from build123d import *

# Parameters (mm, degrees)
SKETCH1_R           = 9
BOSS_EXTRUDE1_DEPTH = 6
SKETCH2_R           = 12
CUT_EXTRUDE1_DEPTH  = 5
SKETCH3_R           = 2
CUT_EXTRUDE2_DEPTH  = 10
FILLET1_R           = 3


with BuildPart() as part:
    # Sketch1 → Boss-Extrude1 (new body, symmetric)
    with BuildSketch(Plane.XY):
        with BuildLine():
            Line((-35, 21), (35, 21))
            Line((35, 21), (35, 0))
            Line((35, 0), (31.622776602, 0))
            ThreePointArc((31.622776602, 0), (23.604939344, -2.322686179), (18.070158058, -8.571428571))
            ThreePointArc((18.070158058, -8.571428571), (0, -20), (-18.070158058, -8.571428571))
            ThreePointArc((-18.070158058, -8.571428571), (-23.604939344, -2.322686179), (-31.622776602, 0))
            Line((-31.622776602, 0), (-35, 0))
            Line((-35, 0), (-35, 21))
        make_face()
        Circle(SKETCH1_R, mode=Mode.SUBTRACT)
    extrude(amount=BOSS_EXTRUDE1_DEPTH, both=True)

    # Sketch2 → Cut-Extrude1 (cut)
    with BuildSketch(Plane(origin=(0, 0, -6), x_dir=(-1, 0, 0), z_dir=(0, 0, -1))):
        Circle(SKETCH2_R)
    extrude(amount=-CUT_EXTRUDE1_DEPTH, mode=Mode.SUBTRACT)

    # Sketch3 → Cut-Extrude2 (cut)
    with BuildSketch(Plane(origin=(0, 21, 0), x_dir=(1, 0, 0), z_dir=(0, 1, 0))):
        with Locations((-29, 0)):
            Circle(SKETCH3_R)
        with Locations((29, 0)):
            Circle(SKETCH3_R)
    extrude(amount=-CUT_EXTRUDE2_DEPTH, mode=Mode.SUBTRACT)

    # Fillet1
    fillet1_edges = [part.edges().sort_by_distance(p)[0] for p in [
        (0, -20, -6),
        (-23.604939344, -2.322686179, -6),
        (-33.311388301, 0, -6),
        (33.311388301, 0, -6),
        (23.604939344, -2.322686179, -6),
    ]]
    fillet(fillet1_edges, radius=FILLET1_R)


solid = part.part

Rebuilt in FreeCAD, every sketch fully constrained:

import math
import FreeCAD as App
import Part
import Sketcher


def edges_at(feature, points):
    """Names of the edges that pass closest to the given points."""
    edges = feature.Shape.Edges
    near = lambda p: min(range(len(edges)), key=lambda i: edges[i].distToShape(Part.Vertex(*p))[0])
    return sorted({f"Edge{near(p) + 1}" for p in points})

doc = App.newDocument("Part")
params = doc.addObject("Spreadsheet::Sheet", "Params")
for row, (alias, value) in enumerate([
    ("sketch1_diameter", "18 mm"),
    ("sketch1_radius", "15 mm"),
    ("sketch1_radius2", "20 mm"),
    ("sketch1_width", "70 mm"),
    ("sketch1_height", "21 mm"),
    ("pad1_length", "12 mm"),
    ("sketch2_diameter", "24 mm"),
    ("pocket1_length", "5 mm"),
    ("sketch3_diameter", "4 mm"),
    ("pocket2_length", "10 mm"),
    ("fillet_radius", "3 mm"),
], start=1):
    params.set(f"A{row}", alias)
    params.set(f"B{row}", "=" + value)
    params.setAlias(f"B{row}", alias)

body = doc.addObject("PartDesign::Body", "Body")

# Sketch on XY plane
sketch1 = body.newObject("Sketcher::SketchObject", "Sketch")
sketch1.AttachmentSupport = (doc.getObject("XY_Plane"), [""])
sketch1.MapMode = "FlatFace"
sketch1.addGeometry(Part.LineSegment(App.Vector(35, 21, 0), App.Vector(-35, 21, 0)), False)
sketch1.addGeometry(Part.LineSegment(App.Vector(-35, 21, 0), App.Vector(-35, 0, 0)), False)
sketch1.addGeometry(Part.LineSegment(App.Vector(-35, 0, 0), App.Vector(-31.6, 0, 0)), False)
sketch1.addGeometry(Part.ArcOfCircle(Part.Circle(App.Vector(-31.6, -15, 0), App.Vector(0, 0, 1), 15), math.radians(25), math.radians(90)), False)
sketch1.addGeometry(Part.ArcOfCircle(Part.Circle(App.Vector(0, 0, 0), App.Vector(0, 0, 1), 20), math.radians(-155), math.radians(-25)), False)
sketch1.addGeometry(Part.ArcOfCircle(Part.Circle(App.Vector(31.6, -15, 0), App.Vector(0, 0, 1), 15), math.radians(90), math.radians(155)), False)
sketch1.addGeometry(Part.LineSegment(App.Vector(31.6, 0, 0), App.Vector(35, 0, 0)), False)
sketch1.addGeometry(Part.LineSegment(App.Vector(35, 0, 0), App.Vector(35, 21, 0)), False)
sketch1.addGeometry(Part.Circle(App.Vector(0, 0, 0), App.Vector(0, 0, 1), 9), False)
sketch1.addConstraint(Sketcher.Constraint("Coincident", 0, 2, 1, 1))
sketch1.addConstraint(Sketcher.Constraint("Coincident", 1, 2, 2, 1))
sketch1.addConstraint(Sketcher.Constraint("Tangent", 2, 2, 3, 2))
sketch1.addConstraint(Sketcher.Constraint("Tangent", 3, 1, 4, 1))
sketch1.addConstraint(Sketcher.Constraint("Tangent", 4, 2, 5, 2))
sketch1.addConstraint(Sketcher.Constraint("Tangent", 5, 1, 6, 1))
sketch1.addConstraint(Sketcher.Constraint("Coincident", 6, 2, 7, 1))
sketch1.addConstraint(Sketcher.Constraint("Coincident", 7, 2, 0, 1))
sketch1.addConstraint(Sketcher.Constraint("Horizontal", 0))
sketch1.addConstraint(Sketcher.Constraint("Vertical", 1))
sketch1.addConstraint(Sketcher.Constraint("Horizontal", 2))
sketch1.addConstraint(Sketcher.Constraint("Horizontal", 6))
sketch1.addConstraint(Sketcher.Constraint("Vertical", 7))
sketch1.addConstraint(Sketcher.Constraint("Coincident", 4, 3, -1, 1))
sketch1.addConstraint(Sketcher.Constraint("Coincident", 8, 3, -1, 1))
sketch1.addConstraint(Sketcher.Constraint("Equal", 3, 5))
sketch1.addConstraint(Sketcher.Constraint("Symmetric", 2, 2, 5, 1, -1, 1))
sketch1.addConstraint(Sketcher.Constraint("Equal", 2, 6))
sketch1.addConstraint(Sketcher.Constraint("Diameter", 8, 18.0))
sketch1.addConstraint(Sketcher.Constraint("Radius", 3, 15.0))
sketch1.addConstraint(Sketcher.Constraint("Radius", 4, 20.0))
sketch1.addConstraint(Sketcher.Constraint("DistanceX", 0, 2, 0, 1, 70.0))
sketch1.addConstraint(Sketcher.Constraint("DistanceY", 1, 2, 1, 1, 21.0))
sketch1.setExpression("Constraints[18]", "Params.sketch1_diameter")
sketch1.setExpression("Constraints[19]", "Params.sketch1_radius")
sketch1.setExpression("Constraints[20]", "Params.sketch1_radius2")
sketch1.setExpression("Constraints[21]", "Params.sketch1_width")
sketch1.setExpression("Constraints[22]", "Params.sketch1_height")
pad1 = body.newObject("PartDesign::Pad", "Pad")
pad1.Profile = sketch1
pad1.setExpression("Length", "Params.pad1_length")
pad1.Midplane = True

# Sketch on XY plane
sketch2 = body.newObject("Sketcher::SketchObject", "Sketch001")
sketch2.AttachmentSupport = (doc.getObject("XY_Plane"), [""])
sketch2.MapMode = "FlatFace"
sketch2.AttachmentOffset = App.Placement(App.Vector(0, 0, -6), App.Rotation())
sketch2.addGeometry(Part.Circle(App.Vector(0, 0, 0), App.Vector(0, 0, 1), 12), False)
sketch2.addConstraint(Sketcher.Constraint("Coincident", 0, 3, -1, 1))
sketch2.addConstraint(Sketcher.Constraint("Diameter", 0, 24.0))
sketch2.setExpression("Constraints[1]", "Params.sketch2_diameter")
pocket1 = body.newObject("PartDesign::Pocket", "Pocket")
pocket1.Profile = sketch2
pocket1.setExpression("Length", "Params.pocket1_length")
pocket1.Reversed = True

# Sketch on XZ plane
sketch3 = body.newObject("Sketcher::SketchObject", "Sketch002")
sketch3.AttachmentSupport = (doc.getObject("XZ_Plane"), [""])
sketch3.MapMode = "FlatFace"
sketch3.AttachmentOffset = App.Placement(App.Vector(0, 0, -21), App.Rotation())
sketch3.addGeometry(Part.Circle(App.Vector(-29, 0, 0), App.Vector(0, 0, 1), 2), False)
sketch3.addGeometry(Part.Circle(App.Vector(29, 0, 0), App.Vector(0, 0, 1), 2), False)
sketch3.addConstraint(Sketcher.Constraint("Equal", 0, 1))
sketch3.addConstraint(Sketcher.Constraint("Symmetric", 0, 3, 1, 3, -1, 1))
sketch3.addConstraint(Sketcher.Constraint("PointOnObject", 0, 3, -1))
sketch3.addConstraint(Sketcher.Constraint("Diameter", 0, 4.0))
sketch3.addConstraint(Sketcher.Constraint("DistanceX", 0, 3, -1, 1, 29.0))
sketch3.setExpression("Constraints[3]", "Params.sketch3_diameter")
pocket2 = body.newObject("PartDesign::Pocket", "Pocket001")
pocket2.Profile = sketch3
pocket2.setExpression("Length", "Params.pocket2_length")
pocket2.Reversed = True
doc.recompute()

fillet = body.newObject("PartDesign::Fillet", "Fillet")
fillet.Base = (pocket2, edges_at(pocket2, [
    (0, -20, -6),
    (-23.605, -2.323, -6),
    (-33.311, 0, -6),
    (33.311, 0, -6),
    (23.605, -2.323, -6),
]))
fillet.setExpression("Radius", "Params.fillet_radius")

doc.recompute()
